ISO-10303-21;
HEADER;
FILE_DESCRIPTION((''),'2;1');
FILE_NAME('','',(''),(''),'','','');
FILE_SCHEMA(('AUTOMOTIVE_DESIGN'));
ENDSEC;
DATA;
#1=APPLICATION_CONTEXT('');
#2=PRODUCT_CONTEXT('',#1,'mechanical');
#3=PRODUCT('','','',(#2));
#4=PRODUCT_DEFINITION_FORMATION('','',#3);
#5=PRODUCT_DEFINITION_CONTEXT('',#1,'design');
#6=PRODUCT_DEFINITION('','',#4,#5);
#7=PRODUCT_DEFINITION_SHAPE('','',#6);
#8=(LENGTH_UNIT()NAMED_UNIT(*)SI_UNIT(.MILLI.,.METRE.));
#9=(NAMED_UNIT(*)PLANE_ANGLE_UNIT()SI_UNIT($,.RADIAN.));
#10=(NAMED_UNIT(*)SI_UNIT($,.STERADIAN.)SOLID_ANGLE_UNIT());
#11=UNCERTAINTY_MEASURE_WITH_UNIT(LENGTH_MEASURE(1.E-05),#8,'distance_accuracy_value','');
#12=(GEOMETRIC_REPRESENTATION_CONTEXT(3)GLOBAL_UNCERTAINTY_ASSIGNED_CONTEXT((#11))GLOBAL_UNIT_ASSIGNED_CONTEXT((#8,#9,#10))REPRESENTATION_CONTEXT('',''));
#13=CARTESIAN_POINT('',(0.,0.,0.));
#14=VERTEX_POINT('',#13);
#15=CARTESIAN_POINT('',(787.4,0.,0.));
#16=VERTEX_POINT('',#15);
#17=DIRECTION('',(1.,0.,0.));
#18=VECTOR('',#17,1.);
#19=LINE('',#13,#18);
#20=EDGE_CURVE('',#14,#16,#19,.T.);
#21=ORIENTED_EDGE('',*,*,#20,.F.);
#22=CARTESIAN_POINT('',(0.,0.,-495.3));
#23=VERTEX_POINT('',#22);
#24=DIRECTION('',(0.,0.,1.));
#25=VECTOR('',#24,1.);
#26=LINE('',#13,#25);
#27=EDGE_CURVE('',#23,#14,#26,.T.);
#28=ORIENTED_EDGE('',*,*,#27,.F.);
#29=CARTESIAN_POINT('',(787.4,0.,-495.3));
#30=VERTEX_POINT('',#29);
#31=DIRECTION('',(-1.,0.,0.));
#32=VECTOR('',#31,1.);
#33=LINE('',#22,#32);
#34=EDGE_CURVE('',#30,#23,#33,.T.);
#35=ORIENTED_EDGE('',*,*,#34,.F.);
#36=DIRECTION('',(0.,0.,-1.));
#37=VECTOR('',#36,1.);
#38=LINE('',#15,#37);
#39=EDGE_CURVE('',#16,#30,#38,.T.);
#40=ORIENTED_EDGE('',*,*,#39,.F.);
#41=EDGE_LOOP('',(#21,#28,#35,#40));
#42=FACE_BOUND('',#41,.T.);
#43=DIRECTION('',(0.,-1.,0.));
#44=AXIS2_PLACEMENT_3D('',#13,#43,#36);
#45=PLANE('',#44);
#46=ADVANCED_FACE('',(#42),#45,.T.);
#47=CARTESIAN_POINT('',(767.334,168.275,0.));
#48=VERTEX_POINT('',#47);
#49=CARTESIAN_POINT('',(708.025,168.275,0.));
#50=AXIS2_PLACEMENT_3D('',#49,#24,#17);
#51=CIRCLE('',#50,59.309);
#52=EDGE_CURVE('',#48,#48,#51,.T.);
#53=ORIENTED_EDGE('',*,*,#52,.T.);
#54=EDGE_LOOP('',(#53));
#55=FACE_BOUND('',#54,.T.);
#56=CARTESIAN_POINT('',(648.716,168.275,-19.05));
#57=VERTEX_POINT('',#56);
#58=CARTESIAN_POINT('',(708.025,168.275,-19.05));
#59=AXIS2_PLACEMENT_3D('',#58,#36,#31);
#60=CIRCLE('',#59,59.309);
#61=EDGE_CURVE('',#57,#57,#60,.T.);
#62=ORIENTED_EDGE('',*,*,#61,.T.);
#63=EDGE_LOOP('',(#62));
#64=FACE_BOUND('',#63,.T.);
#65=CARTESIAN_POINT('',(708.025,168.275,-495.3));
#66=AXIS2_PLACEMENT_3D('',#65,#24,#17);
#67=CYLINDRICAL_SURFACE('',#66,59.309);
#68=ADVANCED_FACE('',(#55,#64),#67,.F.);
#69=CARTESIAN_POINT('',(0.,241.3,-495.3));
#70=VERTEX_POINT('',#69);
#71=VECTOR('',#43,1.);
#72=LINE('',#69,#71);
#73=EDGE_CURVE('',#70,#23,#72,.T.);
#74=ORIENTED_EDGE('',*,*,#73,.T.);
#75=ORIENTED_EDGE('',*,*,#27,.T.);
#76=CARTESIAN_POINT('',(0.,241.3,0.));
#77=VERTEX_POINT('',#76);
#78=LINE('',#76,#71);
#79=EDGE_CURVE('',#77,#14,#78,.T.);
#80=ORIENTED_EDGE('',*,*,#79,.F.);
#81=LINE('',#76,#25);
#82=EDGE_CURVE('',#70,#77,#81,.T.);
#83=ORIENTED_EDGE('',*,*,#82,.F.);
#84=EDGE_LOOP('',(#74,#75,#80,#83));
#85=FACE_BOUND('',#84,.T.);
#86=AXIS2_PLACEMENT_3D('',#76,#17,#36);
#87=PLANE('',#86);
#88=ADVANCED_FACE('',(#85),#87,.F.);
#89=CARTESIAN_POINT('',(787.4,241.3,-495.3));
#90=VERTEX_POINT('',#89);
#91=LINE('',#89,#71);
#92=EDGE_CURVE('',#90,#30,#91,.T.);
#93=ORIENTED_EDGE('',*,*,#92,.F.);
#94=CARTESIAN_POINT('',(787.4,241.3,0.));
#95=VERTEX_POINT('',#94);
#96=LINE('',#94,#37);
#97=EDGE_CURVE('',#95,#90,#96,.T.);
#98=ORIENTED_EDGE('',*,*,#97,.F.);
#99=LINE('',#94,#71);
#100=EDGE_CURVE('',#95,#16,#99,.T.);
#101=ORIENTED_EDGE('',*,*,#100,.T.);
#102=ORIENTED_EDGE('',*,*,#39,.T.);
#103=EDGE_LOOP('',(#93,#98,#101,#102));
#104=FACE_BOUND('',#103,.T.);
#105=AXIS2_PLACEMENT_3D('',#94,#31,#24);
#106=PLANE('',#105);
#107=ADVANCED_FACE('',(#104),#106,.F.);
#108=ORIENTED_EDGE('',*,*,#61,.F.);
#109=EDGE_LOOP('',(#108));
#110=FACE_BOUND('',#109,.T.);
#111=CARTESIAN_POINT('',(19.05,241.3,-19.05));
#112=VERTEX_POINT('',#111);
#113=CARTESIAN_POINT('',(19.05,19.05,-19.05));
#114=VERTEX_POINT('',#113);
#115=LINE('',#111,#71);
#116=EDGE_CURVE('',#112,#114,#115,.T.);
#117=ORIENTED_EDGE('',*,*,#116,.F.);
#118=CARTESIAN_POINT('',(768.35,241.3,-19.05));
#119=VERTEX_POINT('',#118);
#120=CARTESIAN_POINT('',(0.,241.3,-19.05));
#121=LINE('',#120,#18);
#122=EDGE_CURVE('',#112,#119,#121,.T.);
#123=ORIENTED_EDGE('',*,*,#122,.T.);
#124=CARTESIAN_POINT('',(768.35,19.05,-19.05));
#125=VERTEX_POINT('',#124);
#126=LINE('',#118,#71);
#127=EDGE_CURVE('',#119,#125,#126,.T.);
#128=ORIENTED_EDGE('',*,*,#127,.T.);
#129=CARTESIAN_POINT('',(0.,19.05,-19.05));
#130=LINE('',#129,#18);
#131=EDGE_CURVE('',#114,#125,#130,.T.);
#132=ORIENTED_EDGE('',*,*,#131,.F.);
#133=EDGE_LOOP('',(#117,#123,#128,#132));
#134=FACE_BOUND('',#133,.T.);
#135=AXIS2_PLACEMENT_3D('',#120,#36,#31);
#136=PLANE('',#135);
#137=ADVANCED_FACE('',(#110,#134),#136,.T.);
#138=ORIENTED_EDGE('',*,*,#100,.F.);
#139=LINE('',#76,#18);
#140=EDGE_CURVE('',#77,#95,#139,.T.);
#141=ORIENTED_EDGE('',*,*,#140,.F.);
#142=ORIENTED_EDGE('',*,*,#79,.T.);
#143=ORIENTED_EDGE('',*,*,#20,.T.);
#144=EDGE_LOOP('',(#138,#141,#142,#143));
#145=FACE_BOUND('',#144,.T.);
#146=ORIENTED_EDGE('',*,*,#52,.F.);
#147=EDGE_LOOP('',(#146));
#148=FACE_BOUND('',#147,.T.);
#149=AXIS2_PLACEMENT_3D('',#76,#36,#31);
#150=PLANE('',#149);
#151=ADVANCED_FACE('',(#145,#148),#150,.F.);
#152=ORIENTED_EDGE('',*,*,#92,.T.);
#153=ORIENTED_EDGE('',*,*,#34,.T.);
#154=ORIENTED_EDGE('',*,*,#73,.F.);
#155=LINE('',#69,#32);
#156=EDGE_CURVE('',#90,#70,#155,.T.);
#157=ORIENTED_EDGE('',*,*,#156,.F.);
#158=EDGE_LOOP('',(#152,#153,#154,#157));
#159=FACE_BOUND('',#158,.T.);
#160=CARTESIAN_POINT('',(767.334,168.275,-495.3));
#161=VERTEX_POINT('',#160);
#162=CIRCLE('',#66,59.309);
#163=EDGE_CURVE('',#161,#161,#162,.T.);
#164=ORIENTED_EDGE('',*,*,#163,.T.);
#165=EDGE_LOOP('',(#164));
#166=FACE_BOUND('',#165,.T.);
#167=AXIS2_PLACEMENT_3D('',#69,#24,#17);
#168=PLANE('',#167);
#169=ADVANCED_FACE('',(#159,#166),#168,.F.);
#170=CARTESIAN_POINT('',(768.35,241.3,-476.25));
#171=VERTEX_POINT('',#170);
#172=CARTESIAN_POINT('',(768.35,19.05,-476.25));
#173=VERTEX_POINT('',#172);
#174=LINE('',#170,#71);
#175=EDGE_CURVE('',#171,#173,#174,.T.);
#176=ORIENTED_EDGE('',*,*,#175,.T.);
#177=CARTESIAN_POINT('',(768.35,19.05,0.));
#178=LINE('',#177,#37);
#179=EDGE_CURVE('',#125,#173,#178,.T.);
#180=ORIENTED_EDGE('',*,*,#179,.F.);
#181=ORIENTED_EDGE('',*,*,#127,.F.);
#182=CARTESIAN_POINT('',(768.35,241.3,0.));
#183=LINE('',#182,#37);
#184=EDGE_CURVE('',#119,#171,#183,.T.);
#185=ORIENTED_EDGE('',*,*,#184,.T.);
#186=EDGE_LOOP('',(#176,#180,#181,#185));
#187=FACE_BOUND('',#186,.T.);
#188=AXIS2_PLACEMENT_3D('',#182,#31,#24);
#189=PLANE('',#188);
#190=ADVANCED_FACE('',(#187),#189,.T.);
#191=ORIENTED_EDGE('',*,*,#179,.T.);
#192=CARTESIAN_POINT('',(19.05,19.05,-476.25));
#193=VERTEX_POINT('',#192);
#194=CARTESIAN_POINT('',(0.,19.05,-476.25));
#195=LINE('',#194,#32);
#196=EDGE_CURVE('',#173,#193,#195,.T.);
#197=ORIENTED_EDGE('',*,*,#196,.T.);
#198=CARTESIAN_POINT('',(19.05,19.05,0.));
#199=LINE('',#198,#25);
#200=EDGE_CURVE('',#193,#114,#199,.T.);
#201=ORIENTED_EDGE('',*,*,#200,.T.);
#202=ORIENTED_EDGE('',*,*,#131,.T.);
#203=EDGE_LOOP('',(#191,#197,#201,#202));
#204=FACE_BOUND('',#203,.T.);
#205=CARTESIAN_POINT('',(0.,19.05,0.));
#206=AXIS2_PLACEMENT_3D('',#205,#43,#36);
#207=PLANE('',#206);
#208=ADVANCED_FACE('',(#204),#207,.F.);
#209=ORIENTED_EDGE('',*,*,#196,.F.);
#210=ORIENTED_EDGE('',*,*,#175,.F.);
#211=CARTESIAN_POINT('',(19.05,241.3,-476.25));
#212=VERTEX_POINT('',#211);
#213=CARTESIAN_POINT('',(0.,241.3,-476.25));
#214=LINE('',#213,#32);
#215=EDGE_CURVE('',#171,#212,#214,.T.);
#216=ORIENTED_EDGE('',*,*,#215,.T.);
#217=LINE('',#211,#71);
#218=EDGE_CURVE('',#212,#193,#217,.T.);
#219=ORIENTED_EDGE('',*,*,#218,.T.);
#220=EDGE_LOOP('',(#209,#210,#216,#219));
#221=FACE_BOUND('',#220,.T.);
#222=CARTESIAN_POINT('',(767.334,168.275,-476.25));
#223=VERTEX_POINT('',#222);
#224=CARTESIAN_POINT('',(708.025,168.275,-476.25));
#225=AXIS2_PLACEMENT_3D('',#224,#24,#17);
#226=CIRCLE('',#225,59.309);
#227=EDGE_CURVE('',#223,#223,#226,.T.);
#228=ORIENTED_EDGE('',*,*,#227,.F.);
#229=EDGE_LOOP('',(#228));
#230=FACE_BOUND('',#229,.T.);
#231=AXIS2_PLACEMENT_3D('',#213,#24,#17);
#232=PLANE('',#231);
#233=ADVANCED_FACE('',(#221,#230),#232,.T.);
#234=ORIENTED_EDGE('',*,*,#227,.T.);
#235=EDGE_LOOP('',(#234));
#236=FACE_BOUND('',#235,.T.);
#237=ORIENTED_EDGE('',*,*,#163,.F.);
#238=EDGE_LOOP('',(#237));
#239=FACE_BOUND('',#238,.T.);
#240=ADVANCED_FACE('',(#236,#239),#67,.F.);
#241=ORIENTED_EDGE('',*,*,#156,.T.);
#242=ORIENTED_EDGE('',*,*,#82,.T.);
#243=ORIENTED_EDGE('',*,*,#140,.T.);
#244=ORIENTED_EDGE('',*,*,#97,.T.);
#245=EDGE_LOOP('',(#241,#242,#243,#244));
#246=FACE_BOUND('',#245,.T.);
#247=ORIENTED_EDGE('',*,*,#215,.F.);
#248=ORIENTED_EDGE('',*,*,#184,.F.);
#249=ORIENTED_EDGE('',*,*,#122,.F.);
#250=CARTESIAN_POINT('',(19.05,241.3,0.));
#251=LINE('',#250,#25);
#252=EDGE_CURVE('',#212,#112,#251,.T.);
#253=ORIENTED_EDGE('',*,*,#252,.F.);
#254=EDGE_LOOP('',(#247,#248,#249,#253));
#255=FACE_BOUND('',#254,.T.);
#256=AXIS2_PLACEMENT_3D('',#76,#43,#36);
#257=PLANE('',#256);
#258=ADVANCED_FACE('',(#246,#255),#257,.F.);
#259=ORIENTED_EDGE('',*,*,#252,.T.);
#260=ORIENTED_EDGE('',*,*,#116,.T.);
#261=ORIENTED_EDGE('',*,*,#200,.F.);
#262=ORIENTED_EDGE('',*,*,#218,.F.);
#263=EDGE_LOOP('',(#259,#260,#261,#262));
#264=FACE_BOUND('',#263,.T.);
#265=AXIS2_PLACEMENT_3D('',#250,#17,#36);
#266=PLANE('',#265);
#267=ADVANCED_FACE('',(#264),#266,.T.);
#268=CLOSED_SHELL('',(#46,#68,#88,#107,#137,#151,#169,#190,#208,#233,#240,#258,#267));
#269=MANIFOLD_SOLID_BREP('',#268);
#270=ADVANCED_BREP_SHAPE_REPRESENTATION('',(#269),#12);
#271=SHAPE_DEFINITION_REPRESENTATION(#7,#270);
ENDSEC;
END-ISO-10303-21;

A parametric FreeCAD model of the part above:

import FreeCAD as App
import Part
import Sketcher
Q = App.Units.Quantity


def faces_at(feature, points):
    """Names of the faces that lie closest to the given points."""
    faces = feature.Shape.Faces
    near = lambda p: min(range(len(faces)), key=lambda i: faces[i].distToShape(Part.Vertex(*p))[0])
    return sorted({f"Face{near(p) + 1}" for p in points})

doc = App.newDocument("Part")
body = doc.addObject("PartDesign::Body", "Body")

sketch1 = body.newObject("Sketcher::SketchObject", "Sketch")
sketch1.AttachmentSupport = (doc.getObject("XZ_Plane"), [""])
sketch1.MapMode = "FlatFace"
sketch1.addGeometry(Part.LineSegment(App.Vector(0, -495.3, 0), App.Vector(0, 0, 0)), False)
sketch1.addGeometry(Part.LineSegment(App.Vector(0, 0, 0), App.Vector(787.4, 0, 0)), False)
sketch1.addGeometry(Part.LineSegment(App.Vector(787.4, 0, 0), App.Vector(787.4, -495.3, 0)), False)
sketch1.addGeometry(Part.LineSegment(App.Vector(787.4, -495.3, 0), App.Vector(0, -495.3, 0)), False)
sketch1.addConstraint(Sketcher.Constraint("Coincident", 0, 2, 1, 1))
sketch1.addConstraint(Sketcher.Constraint("Coincident", 1, 2, 2, 1))
sketch1.addConstraint(Sketcher.Constraint("Coincident", 2, 2, 3, 1))
sketch1.addConstraint(Sketcher.Constraint("Coincident", 3, 2, 0, 1))
sketch1.addConstraint(Sketcher.Constraint("Vertical", 0))
sketch1.addConstraint(Sketcher.Constraint("Horizontal", 1))
sketch1.addConstraint(Sketcher.Constraint("Vertical", 2))
sketch1.addConstraint(Sketcher.Constraint("Horizontal", 3))
sketch1.addConstraint(Sketcher.Constraint("Coincident", 0, 2, -1, 1))
sketch1.addConstraint(Sketcher.Constraint("DistanceX", 1, 1, 1, 2, Q("31 in")))
sketch1.addConstraint(Sketcher.Constraint("DistanceY", 0, 1, 0, 2, Q("19.5 in")))
pad1 = body.newObject("PartDesign::Pad", "Pad")
pad1.Profile = sketch1
pad1.Length = Q("9.5 in")
pad1.Reversed = True
doc.recompute()

thickness = body.newObject("PartDesign::Thickness", "Thickness")
thickness.Base = (pad1, faces_at(pad1, [(393.7, 241.3, -247.65)]))
thickness.Value = Q("0.75 in")
thickness.Reversed = True
thickness.Join = "Intersection"

sketch2 = body.newObject("Sketcher::SketchObject", "Sketch001")
sketch2.AttachmentSupport = (doc.getObject("XY_Plane"), [""])
sketch2.MapMode = "FlatFace"
sketch2.addGeometry(Part.Circle(App.Vector(708.025, 168.275, 0), App.Vector(0, 0, 1), 59.309), False)
sketch2.addConstraint(Sketcher.Constraint("Diameter", 0, Q("4.67 in")))
sketch2.addConstraint(Sketcher.Constraint("DistanceX", -1, 1, 0, 3, Q("27.875 in")))
sketch2.addConstraint(Sketcher.Constraint("DistanceY", -1, 1, 0, 3, Q("6.625 in")))
pocket1 = body.newObject("PartDesign::Pocket", "Pocket")
pocket1.Profile = sketch2
pocket1.Type = "ThroughAll"

doc.recompute()
